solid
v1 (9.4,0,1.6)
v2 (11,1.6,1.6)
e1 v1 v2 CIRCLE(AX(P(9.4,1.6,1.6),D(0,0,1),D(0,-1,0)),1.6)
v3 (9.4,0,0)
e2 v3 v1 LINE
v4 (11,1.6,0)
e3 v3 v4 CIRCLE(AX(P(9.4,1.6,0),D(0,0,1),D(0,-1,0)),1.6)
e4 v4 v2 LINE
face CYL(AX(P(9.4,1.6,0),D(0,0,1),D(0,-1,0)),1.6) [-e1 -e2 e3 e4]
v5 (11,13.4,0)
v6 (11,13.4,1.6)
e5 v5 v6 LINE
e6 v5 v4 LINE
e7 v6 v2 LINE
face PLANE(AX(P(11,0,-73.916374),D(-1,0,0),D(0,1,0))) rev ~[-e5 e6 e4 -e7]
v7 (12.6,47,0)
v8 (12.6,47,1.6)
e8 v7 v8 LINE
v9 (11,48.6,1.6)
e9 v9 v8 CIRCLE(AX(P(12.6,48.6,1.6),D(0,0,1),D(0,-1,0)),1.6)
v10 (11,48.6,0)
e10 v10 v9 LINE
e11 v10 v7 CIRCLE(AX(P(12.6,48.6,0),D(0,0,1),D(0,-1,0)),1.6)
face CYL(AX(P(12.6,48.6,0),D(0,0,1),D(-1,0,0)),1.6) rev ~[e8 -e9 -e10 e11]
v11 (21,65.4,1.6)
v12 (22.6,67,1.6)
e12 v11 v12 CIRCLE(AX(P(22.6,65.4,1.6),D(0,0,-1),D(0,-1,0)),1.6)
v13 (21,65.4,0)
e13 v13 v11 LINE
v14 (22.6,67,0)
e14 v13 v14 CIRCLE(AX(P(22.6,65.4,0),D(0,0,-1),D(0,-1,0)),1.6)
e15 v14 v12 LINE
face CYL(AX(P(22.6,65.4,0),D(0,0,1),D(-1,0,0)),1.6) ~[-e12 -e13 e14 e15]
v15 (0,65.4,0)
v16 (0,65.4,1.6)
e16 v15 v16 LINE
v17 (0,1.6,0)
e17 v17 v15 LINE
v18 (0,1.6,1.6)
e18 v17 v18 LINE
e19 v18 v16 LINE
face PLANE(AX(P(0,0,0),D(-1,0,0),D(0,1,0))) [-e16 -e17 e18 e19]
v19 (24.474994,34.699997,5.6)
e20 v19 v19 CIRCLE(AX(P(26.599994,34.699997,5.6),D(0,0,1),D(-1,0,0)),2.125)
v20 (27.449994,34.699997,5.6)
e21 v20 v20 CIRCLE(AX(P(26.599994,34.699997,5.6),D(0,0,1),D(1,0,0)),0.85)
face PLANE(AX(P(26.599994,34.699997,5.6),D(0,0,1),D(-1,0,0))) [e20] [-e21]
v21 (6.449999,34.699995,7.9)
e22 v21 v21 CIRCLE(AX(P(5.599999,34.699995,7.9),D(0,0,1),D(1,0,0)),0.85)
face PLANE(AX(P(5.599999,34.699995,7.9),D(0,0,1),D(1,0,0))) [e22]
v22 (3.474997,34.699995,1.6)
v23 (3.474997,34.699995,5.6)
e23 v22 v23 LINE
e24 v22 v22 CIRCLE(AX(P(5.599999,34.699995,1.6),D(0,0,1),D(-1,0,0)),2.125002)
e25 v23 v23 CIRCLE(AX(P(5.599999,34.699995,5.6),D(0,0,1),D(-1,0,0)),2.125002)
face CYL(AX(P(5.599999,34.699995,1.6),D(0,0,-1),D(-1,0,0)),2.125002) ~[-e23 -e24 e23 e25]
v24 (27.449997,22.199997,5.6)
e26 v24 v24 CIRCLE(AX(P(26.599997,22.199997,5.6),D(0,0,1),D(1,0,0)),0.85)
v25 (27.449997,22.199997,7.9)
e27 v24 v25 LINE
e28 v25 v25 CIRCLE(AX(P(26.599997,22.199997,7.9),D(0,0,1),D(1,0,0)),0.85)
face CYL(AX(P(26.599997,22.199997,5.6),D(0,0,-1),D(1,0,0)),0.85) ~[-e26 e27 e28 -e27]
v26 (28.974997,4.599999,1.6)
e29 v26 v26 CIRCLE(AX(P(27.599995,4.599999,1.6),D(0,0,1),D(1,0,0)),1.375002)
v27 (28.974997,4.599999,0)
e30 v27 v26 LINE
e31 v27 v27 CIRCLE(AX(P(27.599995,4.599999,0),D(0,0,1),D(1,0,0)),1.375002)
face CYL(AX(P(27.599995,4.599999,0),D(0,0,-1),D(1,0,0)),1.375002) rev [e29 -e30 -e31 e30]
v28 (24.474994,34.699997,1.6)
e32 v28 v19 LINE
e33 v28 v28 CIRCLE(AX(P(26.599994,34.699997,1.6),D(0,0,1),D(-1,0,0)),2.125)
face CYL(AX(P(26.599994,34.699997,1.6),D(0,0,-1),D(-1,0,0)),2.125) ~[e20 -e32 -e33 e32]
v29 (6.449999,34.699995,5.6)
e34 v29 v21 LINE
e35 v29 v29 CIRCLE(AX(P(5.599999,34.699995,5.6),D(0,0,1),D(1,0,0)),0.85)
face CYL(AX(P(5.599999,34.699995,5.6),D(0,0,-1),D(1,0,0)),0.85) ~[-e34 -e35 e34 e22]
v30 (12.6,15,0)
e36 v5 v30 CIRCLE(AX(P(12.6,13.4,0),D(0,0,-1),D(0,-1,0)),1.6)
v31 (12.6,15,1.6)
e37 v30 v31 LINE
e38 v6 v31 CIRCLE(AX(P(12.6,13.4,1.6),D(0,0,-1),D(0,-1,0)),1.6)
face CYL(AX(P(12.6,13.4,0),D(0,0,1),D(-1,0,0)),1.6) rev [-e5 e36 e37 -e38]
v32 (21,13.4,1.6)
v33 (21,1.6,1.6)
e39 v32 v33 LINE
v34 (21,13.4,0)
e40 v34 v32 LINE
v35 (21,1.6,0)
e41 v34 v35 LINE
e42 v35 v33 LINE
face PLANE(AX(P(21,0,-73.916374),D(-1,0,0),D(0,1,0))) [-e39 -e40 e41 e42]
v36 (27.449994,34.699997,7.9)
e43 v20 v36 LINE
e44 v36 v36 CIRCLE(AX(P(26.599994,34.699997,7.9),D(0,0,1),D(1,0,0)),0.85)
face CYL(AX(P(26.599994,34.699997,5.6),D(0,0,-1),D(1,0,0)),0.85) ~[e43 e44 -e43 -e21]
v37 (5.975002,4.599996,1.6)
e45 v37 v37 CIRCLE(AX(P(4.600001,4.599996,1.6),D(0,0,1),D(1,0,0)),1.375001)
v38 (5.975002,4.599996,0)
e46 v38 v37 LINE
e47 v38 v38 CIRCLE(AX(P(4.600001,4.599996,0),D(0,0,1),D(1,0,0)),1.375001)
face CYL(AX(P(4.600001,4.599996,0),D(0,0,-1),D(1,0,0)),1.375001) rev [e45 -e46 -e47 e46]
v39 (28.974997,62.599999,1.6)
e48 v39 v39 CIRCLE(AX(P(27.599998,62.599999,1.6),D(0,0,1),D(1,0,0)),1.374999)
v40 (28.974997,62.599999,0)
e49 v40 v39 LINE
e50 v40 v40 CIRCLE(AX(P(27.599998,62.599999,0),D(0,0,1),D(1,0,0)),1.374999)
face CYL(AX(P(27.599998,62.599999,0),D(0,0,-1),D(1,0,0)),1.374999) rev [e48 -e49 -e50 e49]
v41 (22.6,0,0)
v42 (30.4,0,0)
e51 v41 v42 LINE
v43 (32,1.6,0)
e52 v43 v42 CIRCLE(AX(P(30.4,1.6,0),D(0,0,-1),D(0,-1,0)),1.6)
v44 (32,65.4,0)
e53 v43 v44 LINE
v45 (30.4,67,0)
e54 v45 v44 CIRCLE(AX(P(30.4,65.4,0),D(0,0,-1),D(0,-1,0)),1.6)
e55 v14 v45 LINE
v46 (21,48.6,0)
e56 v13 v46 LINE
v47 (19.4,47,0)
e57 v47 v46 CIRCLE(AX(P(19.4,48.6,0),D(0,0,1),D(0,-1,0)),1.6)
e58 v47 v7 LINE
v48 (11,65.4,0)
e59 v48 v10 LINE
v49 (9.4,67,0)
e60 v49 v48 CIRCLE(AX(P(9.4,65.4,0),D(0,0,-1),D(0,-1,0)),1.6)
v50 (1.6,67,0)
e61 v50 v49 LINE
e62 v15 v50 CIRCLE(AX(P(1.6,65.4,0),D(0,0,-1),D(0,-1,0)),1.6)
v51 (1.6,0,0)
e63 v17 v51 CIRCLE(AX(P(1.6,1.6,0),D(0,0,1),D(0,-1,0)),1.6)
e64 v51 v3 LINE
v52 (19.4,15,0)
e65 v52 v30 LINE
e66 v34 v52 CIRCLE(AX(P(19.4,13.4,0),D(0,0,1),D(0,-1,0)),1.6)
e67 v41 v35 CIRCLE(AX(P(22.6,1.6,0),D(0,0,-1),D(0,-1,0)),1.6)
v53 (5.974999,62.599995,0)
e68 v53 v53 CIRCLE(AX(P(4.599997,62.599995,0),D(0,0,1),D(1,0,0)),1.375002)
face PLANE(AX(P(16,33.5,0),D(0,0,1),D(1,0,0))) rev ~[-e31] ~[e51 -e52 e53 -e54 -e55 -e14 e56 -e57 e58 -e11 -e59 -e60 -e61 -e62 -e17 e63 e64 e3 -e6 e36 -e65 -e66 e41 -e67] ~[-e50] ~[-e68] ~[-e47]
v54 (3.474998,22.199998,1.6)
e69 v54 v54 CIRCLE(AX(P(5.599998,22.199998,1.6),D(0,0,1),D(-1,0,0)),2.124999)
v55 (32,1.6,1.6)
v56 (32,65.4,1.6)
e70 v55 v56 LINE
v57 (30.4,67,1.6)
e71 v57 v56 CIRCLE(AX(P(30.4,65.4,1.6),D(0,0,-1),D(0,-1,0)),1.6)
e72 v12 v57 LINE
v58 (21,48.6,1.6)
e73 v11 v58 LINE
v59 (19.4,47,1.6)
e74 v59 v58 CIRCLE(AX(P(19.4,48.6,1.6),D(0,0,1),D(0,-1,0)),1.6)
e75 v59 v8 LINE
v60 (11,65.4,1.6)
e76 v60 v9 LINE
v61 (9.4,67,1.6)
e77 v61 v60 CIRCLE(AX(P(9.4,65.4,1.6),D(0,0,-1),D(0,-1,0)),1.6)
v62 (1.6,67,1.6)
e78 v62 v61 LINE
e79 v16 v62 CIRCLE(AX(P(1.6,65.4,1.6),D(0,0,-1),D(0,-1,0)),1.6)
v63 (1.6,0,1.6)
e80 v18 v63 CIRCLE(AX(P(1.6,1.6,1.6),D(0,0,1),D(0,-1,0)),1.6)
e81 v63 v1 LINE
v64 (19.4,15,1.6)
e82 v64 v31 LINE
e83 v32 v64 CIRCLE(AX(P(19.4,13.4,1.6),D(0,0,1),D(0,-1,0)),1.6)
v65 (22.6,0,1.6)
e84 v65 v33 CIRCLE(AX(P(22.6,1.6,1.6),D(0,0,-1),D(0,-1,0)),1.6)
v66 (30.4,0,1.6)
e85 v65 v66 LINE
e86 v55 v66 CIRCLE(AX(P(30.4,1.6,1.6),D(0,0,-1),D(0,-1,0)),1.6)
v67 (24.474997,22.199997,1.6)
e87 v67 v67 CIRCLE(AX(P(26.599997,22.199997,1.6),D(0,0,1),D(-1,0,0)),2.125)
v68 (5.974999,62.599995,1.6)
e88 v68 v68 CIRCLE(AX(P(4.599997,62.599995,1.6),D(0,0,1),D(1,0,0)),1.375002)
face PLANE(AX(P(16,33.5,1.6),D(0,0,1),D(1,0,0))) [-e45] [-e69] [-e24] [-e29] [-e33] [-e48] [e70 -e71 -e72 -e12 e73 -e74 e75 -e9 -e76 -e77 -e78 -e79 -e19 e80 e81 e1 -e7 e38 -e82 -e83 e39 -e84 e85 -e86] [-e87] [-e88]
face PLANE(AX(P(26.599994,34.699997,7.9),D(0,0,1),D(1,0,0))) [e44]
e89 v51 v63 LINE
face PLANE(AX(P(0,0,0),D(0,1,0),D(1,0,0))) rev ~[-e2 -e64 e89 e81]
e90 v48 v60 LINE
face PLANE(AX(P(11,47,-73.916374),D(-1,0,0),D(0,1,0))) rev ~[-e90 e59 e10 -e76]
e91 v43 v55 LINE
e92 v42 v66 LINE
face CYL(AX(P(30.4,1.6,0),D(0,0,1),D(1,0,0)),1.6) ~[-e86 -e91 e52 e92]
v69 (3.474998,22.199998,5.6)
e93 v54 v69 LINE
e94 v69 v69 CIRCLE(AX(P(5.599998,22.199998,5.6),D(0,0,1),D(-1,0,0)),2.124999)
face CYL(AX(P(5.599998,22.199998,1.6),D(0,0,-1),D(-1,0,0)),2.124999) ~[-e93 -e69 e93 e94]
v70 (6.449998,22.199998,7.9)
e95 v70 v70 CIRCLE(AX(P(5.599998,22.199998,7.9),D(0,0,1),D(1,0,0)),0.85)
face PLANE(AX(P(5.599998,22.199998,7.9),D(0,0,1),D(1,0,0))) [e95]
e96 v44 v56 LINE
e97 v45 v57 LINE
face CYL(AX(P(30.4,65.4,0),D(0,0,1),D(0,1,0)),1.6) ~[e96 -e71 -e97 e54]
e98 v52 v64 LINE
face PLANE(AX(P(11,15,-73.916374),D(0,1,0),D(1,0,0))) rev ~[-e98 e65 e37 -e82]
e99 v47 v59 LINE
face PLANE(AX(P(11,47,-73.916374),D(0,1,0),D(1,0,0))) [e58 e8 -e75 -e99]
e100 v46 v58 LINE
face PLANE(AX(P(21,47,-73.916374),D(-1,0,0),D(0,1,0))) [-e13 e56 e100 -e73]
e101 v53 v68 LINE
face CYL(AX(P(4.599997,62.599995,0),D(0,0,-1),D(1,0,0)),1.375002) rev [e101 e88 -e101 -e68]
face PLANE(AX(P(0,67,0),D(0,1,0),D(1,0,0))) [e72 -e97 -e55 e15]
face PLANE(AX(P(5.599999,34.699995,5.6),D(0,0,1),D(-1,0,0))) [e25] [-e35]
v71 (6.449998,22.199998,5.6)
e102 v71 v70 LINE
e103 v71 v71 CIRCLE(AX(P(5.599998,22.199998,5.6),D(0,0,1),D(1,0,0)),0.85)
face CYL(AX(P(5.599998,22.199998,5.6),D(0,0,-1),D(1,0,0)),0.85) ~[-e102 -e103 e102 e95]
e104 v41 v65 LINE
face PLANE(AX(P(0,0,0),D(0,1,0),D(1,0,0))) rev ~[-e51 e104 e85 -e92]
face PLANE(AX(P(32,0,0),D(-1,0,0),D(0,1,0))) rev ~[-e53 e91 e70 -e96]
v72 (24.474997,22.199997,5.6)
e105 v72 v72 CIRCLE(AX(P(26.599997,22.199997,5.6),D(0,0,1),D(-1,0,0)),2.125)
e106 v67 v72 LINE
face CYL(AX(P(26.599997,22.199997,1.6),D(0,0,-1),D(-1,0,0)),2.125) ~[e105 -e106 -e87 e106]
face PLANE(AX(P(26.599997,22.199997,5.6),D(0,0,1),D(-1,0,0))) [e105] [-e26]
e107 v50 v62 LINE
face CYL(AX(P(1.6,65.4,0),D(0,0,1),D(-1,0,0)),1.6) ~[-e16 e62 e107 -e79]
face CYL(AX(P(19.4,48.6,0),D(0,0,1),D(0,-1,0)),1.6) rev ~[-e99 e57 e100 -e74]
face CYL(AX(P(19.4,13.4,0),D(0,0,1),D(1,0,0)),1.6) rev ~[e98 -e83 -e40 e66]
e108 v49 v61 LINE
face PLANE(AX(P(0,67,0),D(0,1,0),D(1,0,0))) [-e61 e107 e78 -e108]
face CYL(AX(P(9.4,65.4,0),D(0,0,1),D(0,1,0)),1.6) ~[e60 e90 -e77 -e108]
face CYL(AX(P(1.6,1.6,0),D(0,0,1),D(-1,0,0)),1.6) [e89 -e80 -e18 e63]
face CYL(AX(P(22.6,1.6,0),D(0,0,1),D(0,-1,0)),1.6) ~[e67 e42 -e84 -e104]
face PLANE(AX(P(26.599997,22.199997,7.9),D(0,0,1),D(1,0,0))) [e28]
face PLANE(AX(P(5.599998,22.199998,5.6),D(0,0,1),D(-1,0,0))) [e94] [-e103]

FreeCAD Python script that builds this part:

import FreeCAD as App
import Part
import Sketcher


def edges_at(feature, points):
    """Names of the edges that pass closest to the given points."""
    edges = feature.Shape.Edges
    near = lambda p: min(range(len(edges)), key=lambda i: edges[i].distToShape(Part.Vertex(*p))[0])
    return sorted({f"Edge{near(p) + 1}" for p in points})


def add_polygon(sketch, points):
    """Adds a closed chain of lines whose ends are joined by coincident constraints."""
    first, n = sketch.GeometryCount, len(points)
    for a, b in zip(points, points[1:] + points[:1]):
        sketch.addGeometry(Part.LineSegment(App.Vector(*a, 0), App.Vector(*b, 0)), False)
    for i in range(n):
        sketch.addConstraint(Sketcher.Constraint("Coincident", first + i, 2, first + (i + 1) % n, 1))

doc = App.newDocument("Part")
params = doc.addObject("Spreadsheet::Sheet", "Params")
for row, (alias, value) in enumerate([
    ("sketch1_width", "32 mm"),
    ("sketch1_height", "67 mm"),
    ("pad1_length", "1.6 mm"),
    ("sketch2_diameter", "4.250001 mm"),
    ("pad2_length", "4 mm"),
    ("sketch3_diameter", "1.7 mm"),
    ("pad3_length", "2.3 mm"),
    ("sketch4_width", "10 mm"),
    ("sketch4_height", "20 mm"),
    ("sketch4_height2", "15 mm"),
    ("fillet_radius", "1.6 mm"),
], start=1):
    params.set(f"A{row}", alias)
    params.set(f"B{row}", "=" + value)
    params.setAlias(f"B{row}", alias)

body = doc.addObject("PartDesign::Body", "Body")

sketch1 = doc.addObject("Sketcher::SketchObject", "Sketch")
body.addObject(sketch1)
sketch1.AttachmentSupport = (doc.XY_Plane, [""])
sketch1.MapMode = "FlatFace"
add_polygon(sketch1, [(0, 67), (0, 0), (32, 0), (32, 67)])
sketch1.addGeometry(Part.Circle(App.Vector(4.6, 4.6, 0), App.Vector(0, 0, 1), 1.4), False)
sketch1.addGeometry(Part.Circle(App.Vector(27.6, 4.6, 0), App.Vector(0, 0, 1), 1.4), False)
sketch1.addGeometry(Part.Circle(App.Vector(4.6, 62.6, 0), App.Vector(0, 0, 1), 1.4), False)
sketch1.addGeometry(Part.Circle(App.Vector(27.6, 62.6, 0), App.Vector(0, 0, 1), 1.4), False)
sketch1.addConstraint([
    Sketcher.Constraint("Vertical", 0),
    Sketcher.Constraint("Horizontal", 1),
    Sketcher.Constraint("Vertical", 2),
    Sketcher.Constraint("Horizontal", 3),
    Sketcher.Constraint("Coincident", 0, 2, -1, 1),
    Sketcher.Constraint("Equal", 4, 5),
    Sketcher.Constraint("Equal", 5, 6),
    Sketcher.Constraint("DistanceX", 1, 1, 1, 2, 32.0),
    Sketcher.Constraint("DistanceY", 0, 2, 0, 1, 67.0),
    Sketcher.Constraint("DistanceY", 4, 3, 6, 3, 57.999999),
    Sketcher.Constraint("DistanceX", 6, 3, 5, 3, 22.999998),
    Sketcher.Constraint("DistanceX", 6, 3, 7, 3, 23.000001),
    Sketcher.Constraint("DistanceY", 5, 3, 7, 3, 58.0),
    Sketcher.Constraint("DistanceX", -1, 1, 4, 3, 4.600001),
    Sketcher.Constraint("DistanceY", -1, 1, 5, 3, 4.599999),
    Sketcher.Constraint("Diameter", 4, 2.750002),
    Sketcher.Constraint("Diameter", 7, 2.749998),
    Sketcher.Constraint("DistanceY", -1, 1, 4, 3, 4.599996),
    Sketcher.Constraint("DistanceX", -1, 1, 5, 3, 27.599995),
])
sketch1.setExpression("Constraints[11]", "Params.sketch1_width")
sketch1.setExpression("Constraints[12]", "Params.sketch1_height")
pad1 = doc.addObject("PartDesign::Pad", "Pad")
body.addObject(pad1)
pad1.Profile = sketch1
pad1.setExpression("Length", "Params.pad1_length")

sketch2 = doc.addObject("Sketcher::SketchObject", "Sketch001")
body.addObject(sketch2)
sketch2.AttachmentSupport = (doc.XY_Plane, [""])
sketch2.MapMode = "FlatFace"
sketch2.AttachmentOffset = App.Placement(App.Vector(0, 0, 1.6), App.Rotation())
sketch2.addGeometry([
    Part.Circle(App.Vector(5.6, 34.7, 0), App.Vector(0, 0, 1), 2.1),
    Part.Circle(App.Vector(26.6, 34.7, 0), App.Vector(0, 0, 1), 2.1),
    Part.Circle(App.Vector(5.6, 22.2, 0), App.Vector(0, 0, 1), 2.1),
    Part.Circle(App.Vector(26.6, 22.2, 0), App.Vector(0, 0, 1), 2.1),
], False)
sketch2.addConstraint([
    Sketcher.Constraint("Equal", 0, 1),
    Sketcher.Constraint("Equal", 1, 2),
    Sketcher.Constraint("Equal", 2, 3),
    Sketcher.Constraint("Horizontal", 0, 3, 1, 3),
    Sketcher.Constraint("Horizontal", 2, 3, 3, 3),
    Sketcher.Constraint("Vertical", 0, 3, 2, 3),
    Sketcher.Constraint("Diameter", 1, 4.250001),
    Sketcher.Constraint("DistanceX", 2, 3, 3, 3, 20.999999),
    Sketcher.Constraint("DistanceX", -1, 1, 0, 3, 5.599999),
    Sketcher.Constraint("DistanceY", 2, 3, 1, 3, 12.499999),
    Sketcher.Constraint("DistanceY", -1, 1, 0, 3, 34.699995),
    Sketcher.Constraint("DistanceX", -1, 1, 1, 3, 26.599994),
])
sketch2.setExpression("Constraints[6]", "Params.sketch2_diameter")
pad2 = doc.addObject("PartDesign::Pad", "Pad001")
body.addObject(pad2)
pad2.Profile = sketch2
pad2.setExpression("Length", "Params.pad2_length")

sketch3 = doc.addObject("Sketcher::SketchObject", "Sketch002")
body.addObject(sketch3)
sketch3.AttachmentSupport = (doc.XY_Plane, [""])
sketch3.MapMode = "FlatFace"
sketch3.AttachmentOffset = App.Placement(App.Vector(0, 0, 5.6), App.Rotation())
sketch3.addGeometry([
    Part.Circle(App.Vector(5.6, 34.7, 0), App.Vector(0, 0, 1), 0.8),
    Part.Circle(App.Vector(26.6, 34.7, 0), App.Vector(0, 0, 1), 0.8),
    Part.Circle(App.Vector(5.6, 22.2, 0), App.Vector(0, 0, 1), 0.8),
    Part.Circle(App.Vector(26.6, 22.2, 0), App.Vector(0, 0, 1), 0.8),
], False)
sketch3.addConstraint([
    Sketcher.Constraint("Equal", 0, 1),
    Sketcher.Constraint("Equal", 1, 2),
    Sketcher.Constraint("Equal", 2, 3),
    Sketcher.Constraint("Horizontal", 0, 3, 1, 3),
    Sketcher.Constraint("Horizontal", 2, 3, 3, 3),
    Sketcher.Constraint("Vertical", 0, 3, 2, 3),
    Sketcher.Constraint("Diameter", 0, 1.7),
    Sketcher.Constraint("DistanceX", 2, 3, 3, 3, 20.999999),
    Sketcher.Constraint("DistanceX", -1, 1, 0, 3, 5.599999),
    Sketcher.Constraint("DistanceY", 2, 3, 1, 3, 12.499999),
    Sketcher.Constraint("DistanceY", -1, 1, 0, 3, 34.699995),
    Sketcher.Constraint("DistanceX", -1, 1, 1, 3, 26.599994),
])
sketch3.setExpression("Constraints[6]", "Params.sketch3_diameter")
pad3 = doc.addObject("PartDesign::Pad", "Pad002")
body.addObject(pad3)
pad3.Profile = sketch3
pad3.setExpression("Length", "Params.pad3_length")

sketch4 = doc.addObject("Sketcher::SketchObject", "Sketch003")
body.addObject(sketch4)
sketch4.AttachmentSupport = (doc.XY_Plane, [""])
sketch4.MapMode = "FlatFace"
sketch4.AttachmentOffset = App.Placement(App.Vector(0, 0, 1.6), App.Rotation())
add_polygon(sketch4, [(11, 67), (11, 47), (21, 47), (21, 67)])
add_polygon(sketch4, [(11, 15), (11, 0), (21, 0), (21, 15)])
sketch4.addConstraint([
    Sketcher.Constraint("Vertical", 0),
    Sketcher.Constraint("Horizontal", 1),
    Sketcher.Constraint("Vertical", 2),
    Sketcher.Constraint("Horizontal", 3),
    Sketcher.Constraint("Vertical", 4),
    Sketcher.Constraint("Horizontal", 5),
    Sketcher.Constraint("Vertical", 6),
    Sketcher.Constraint("Horizontal", 7),
    Sketcher.Constraint("PointOnObject", 4, 2, -1),
    Sketcher.Constraint("Vertical", 3, 2, 4, 2),
    Sketcher.Constraint("Vertical", 2, 2, 5, 2),
    Sketcher.Constraint("DistanceX", 1, 1, 1, 2, 10.0),
    Sketcher.Constraint("DistanceY", 0, 2, 0, 1, 20.0),
    Sketcher.Constraint("DistanceY", 4, 2, 4, 1, 15.0),
    Sketcher.Constraint("DistanceX", -1, 1, 0, 2, 11.0),
    Sketcher.Constraint("DistanceY", -1, 1, 0, 2, 47.0),
])
sketch4.setExpression("Constraints[19]", "Params.sketch4_width")
sketch4.setExpression("Constraints[20]", "Params.sketch4_height")
sketch4.setExpression("Constraints[21]", "Params.sketch4_height2")
pocket1 = doc.addObject("PartDesign::Pocket", "Pocket")
body.addObject(pocket1)
pocket1.Profile = sketch4
pocket1.Type = "ThroughAll"
pocket1.Midplane = True
doc.recompute()

fillet = doc.addObject("PartDesign::Fillet", "Fillet")
body.addObject(fillet)
fillet.Base = (pocket1, edges_at(pocket1, [
    (0, 67, 0.8),
    (21, 0, 0.8),
    (11, 15, 0.8),
    (32, 67, 0.8),
    (11, 0, 0.8),
    (21, 15, 0.8),
    (32, 0, 0.8),
    (0, 0, 0.8),
    (11, 67, 0.8),
    (21, 47, 0.8),
    (21, 67, 0.8),
    (11, 47, 0.8),
]))
fillet.setExpression("Radius", "Params.fillet_radius")

doc.recompute()
